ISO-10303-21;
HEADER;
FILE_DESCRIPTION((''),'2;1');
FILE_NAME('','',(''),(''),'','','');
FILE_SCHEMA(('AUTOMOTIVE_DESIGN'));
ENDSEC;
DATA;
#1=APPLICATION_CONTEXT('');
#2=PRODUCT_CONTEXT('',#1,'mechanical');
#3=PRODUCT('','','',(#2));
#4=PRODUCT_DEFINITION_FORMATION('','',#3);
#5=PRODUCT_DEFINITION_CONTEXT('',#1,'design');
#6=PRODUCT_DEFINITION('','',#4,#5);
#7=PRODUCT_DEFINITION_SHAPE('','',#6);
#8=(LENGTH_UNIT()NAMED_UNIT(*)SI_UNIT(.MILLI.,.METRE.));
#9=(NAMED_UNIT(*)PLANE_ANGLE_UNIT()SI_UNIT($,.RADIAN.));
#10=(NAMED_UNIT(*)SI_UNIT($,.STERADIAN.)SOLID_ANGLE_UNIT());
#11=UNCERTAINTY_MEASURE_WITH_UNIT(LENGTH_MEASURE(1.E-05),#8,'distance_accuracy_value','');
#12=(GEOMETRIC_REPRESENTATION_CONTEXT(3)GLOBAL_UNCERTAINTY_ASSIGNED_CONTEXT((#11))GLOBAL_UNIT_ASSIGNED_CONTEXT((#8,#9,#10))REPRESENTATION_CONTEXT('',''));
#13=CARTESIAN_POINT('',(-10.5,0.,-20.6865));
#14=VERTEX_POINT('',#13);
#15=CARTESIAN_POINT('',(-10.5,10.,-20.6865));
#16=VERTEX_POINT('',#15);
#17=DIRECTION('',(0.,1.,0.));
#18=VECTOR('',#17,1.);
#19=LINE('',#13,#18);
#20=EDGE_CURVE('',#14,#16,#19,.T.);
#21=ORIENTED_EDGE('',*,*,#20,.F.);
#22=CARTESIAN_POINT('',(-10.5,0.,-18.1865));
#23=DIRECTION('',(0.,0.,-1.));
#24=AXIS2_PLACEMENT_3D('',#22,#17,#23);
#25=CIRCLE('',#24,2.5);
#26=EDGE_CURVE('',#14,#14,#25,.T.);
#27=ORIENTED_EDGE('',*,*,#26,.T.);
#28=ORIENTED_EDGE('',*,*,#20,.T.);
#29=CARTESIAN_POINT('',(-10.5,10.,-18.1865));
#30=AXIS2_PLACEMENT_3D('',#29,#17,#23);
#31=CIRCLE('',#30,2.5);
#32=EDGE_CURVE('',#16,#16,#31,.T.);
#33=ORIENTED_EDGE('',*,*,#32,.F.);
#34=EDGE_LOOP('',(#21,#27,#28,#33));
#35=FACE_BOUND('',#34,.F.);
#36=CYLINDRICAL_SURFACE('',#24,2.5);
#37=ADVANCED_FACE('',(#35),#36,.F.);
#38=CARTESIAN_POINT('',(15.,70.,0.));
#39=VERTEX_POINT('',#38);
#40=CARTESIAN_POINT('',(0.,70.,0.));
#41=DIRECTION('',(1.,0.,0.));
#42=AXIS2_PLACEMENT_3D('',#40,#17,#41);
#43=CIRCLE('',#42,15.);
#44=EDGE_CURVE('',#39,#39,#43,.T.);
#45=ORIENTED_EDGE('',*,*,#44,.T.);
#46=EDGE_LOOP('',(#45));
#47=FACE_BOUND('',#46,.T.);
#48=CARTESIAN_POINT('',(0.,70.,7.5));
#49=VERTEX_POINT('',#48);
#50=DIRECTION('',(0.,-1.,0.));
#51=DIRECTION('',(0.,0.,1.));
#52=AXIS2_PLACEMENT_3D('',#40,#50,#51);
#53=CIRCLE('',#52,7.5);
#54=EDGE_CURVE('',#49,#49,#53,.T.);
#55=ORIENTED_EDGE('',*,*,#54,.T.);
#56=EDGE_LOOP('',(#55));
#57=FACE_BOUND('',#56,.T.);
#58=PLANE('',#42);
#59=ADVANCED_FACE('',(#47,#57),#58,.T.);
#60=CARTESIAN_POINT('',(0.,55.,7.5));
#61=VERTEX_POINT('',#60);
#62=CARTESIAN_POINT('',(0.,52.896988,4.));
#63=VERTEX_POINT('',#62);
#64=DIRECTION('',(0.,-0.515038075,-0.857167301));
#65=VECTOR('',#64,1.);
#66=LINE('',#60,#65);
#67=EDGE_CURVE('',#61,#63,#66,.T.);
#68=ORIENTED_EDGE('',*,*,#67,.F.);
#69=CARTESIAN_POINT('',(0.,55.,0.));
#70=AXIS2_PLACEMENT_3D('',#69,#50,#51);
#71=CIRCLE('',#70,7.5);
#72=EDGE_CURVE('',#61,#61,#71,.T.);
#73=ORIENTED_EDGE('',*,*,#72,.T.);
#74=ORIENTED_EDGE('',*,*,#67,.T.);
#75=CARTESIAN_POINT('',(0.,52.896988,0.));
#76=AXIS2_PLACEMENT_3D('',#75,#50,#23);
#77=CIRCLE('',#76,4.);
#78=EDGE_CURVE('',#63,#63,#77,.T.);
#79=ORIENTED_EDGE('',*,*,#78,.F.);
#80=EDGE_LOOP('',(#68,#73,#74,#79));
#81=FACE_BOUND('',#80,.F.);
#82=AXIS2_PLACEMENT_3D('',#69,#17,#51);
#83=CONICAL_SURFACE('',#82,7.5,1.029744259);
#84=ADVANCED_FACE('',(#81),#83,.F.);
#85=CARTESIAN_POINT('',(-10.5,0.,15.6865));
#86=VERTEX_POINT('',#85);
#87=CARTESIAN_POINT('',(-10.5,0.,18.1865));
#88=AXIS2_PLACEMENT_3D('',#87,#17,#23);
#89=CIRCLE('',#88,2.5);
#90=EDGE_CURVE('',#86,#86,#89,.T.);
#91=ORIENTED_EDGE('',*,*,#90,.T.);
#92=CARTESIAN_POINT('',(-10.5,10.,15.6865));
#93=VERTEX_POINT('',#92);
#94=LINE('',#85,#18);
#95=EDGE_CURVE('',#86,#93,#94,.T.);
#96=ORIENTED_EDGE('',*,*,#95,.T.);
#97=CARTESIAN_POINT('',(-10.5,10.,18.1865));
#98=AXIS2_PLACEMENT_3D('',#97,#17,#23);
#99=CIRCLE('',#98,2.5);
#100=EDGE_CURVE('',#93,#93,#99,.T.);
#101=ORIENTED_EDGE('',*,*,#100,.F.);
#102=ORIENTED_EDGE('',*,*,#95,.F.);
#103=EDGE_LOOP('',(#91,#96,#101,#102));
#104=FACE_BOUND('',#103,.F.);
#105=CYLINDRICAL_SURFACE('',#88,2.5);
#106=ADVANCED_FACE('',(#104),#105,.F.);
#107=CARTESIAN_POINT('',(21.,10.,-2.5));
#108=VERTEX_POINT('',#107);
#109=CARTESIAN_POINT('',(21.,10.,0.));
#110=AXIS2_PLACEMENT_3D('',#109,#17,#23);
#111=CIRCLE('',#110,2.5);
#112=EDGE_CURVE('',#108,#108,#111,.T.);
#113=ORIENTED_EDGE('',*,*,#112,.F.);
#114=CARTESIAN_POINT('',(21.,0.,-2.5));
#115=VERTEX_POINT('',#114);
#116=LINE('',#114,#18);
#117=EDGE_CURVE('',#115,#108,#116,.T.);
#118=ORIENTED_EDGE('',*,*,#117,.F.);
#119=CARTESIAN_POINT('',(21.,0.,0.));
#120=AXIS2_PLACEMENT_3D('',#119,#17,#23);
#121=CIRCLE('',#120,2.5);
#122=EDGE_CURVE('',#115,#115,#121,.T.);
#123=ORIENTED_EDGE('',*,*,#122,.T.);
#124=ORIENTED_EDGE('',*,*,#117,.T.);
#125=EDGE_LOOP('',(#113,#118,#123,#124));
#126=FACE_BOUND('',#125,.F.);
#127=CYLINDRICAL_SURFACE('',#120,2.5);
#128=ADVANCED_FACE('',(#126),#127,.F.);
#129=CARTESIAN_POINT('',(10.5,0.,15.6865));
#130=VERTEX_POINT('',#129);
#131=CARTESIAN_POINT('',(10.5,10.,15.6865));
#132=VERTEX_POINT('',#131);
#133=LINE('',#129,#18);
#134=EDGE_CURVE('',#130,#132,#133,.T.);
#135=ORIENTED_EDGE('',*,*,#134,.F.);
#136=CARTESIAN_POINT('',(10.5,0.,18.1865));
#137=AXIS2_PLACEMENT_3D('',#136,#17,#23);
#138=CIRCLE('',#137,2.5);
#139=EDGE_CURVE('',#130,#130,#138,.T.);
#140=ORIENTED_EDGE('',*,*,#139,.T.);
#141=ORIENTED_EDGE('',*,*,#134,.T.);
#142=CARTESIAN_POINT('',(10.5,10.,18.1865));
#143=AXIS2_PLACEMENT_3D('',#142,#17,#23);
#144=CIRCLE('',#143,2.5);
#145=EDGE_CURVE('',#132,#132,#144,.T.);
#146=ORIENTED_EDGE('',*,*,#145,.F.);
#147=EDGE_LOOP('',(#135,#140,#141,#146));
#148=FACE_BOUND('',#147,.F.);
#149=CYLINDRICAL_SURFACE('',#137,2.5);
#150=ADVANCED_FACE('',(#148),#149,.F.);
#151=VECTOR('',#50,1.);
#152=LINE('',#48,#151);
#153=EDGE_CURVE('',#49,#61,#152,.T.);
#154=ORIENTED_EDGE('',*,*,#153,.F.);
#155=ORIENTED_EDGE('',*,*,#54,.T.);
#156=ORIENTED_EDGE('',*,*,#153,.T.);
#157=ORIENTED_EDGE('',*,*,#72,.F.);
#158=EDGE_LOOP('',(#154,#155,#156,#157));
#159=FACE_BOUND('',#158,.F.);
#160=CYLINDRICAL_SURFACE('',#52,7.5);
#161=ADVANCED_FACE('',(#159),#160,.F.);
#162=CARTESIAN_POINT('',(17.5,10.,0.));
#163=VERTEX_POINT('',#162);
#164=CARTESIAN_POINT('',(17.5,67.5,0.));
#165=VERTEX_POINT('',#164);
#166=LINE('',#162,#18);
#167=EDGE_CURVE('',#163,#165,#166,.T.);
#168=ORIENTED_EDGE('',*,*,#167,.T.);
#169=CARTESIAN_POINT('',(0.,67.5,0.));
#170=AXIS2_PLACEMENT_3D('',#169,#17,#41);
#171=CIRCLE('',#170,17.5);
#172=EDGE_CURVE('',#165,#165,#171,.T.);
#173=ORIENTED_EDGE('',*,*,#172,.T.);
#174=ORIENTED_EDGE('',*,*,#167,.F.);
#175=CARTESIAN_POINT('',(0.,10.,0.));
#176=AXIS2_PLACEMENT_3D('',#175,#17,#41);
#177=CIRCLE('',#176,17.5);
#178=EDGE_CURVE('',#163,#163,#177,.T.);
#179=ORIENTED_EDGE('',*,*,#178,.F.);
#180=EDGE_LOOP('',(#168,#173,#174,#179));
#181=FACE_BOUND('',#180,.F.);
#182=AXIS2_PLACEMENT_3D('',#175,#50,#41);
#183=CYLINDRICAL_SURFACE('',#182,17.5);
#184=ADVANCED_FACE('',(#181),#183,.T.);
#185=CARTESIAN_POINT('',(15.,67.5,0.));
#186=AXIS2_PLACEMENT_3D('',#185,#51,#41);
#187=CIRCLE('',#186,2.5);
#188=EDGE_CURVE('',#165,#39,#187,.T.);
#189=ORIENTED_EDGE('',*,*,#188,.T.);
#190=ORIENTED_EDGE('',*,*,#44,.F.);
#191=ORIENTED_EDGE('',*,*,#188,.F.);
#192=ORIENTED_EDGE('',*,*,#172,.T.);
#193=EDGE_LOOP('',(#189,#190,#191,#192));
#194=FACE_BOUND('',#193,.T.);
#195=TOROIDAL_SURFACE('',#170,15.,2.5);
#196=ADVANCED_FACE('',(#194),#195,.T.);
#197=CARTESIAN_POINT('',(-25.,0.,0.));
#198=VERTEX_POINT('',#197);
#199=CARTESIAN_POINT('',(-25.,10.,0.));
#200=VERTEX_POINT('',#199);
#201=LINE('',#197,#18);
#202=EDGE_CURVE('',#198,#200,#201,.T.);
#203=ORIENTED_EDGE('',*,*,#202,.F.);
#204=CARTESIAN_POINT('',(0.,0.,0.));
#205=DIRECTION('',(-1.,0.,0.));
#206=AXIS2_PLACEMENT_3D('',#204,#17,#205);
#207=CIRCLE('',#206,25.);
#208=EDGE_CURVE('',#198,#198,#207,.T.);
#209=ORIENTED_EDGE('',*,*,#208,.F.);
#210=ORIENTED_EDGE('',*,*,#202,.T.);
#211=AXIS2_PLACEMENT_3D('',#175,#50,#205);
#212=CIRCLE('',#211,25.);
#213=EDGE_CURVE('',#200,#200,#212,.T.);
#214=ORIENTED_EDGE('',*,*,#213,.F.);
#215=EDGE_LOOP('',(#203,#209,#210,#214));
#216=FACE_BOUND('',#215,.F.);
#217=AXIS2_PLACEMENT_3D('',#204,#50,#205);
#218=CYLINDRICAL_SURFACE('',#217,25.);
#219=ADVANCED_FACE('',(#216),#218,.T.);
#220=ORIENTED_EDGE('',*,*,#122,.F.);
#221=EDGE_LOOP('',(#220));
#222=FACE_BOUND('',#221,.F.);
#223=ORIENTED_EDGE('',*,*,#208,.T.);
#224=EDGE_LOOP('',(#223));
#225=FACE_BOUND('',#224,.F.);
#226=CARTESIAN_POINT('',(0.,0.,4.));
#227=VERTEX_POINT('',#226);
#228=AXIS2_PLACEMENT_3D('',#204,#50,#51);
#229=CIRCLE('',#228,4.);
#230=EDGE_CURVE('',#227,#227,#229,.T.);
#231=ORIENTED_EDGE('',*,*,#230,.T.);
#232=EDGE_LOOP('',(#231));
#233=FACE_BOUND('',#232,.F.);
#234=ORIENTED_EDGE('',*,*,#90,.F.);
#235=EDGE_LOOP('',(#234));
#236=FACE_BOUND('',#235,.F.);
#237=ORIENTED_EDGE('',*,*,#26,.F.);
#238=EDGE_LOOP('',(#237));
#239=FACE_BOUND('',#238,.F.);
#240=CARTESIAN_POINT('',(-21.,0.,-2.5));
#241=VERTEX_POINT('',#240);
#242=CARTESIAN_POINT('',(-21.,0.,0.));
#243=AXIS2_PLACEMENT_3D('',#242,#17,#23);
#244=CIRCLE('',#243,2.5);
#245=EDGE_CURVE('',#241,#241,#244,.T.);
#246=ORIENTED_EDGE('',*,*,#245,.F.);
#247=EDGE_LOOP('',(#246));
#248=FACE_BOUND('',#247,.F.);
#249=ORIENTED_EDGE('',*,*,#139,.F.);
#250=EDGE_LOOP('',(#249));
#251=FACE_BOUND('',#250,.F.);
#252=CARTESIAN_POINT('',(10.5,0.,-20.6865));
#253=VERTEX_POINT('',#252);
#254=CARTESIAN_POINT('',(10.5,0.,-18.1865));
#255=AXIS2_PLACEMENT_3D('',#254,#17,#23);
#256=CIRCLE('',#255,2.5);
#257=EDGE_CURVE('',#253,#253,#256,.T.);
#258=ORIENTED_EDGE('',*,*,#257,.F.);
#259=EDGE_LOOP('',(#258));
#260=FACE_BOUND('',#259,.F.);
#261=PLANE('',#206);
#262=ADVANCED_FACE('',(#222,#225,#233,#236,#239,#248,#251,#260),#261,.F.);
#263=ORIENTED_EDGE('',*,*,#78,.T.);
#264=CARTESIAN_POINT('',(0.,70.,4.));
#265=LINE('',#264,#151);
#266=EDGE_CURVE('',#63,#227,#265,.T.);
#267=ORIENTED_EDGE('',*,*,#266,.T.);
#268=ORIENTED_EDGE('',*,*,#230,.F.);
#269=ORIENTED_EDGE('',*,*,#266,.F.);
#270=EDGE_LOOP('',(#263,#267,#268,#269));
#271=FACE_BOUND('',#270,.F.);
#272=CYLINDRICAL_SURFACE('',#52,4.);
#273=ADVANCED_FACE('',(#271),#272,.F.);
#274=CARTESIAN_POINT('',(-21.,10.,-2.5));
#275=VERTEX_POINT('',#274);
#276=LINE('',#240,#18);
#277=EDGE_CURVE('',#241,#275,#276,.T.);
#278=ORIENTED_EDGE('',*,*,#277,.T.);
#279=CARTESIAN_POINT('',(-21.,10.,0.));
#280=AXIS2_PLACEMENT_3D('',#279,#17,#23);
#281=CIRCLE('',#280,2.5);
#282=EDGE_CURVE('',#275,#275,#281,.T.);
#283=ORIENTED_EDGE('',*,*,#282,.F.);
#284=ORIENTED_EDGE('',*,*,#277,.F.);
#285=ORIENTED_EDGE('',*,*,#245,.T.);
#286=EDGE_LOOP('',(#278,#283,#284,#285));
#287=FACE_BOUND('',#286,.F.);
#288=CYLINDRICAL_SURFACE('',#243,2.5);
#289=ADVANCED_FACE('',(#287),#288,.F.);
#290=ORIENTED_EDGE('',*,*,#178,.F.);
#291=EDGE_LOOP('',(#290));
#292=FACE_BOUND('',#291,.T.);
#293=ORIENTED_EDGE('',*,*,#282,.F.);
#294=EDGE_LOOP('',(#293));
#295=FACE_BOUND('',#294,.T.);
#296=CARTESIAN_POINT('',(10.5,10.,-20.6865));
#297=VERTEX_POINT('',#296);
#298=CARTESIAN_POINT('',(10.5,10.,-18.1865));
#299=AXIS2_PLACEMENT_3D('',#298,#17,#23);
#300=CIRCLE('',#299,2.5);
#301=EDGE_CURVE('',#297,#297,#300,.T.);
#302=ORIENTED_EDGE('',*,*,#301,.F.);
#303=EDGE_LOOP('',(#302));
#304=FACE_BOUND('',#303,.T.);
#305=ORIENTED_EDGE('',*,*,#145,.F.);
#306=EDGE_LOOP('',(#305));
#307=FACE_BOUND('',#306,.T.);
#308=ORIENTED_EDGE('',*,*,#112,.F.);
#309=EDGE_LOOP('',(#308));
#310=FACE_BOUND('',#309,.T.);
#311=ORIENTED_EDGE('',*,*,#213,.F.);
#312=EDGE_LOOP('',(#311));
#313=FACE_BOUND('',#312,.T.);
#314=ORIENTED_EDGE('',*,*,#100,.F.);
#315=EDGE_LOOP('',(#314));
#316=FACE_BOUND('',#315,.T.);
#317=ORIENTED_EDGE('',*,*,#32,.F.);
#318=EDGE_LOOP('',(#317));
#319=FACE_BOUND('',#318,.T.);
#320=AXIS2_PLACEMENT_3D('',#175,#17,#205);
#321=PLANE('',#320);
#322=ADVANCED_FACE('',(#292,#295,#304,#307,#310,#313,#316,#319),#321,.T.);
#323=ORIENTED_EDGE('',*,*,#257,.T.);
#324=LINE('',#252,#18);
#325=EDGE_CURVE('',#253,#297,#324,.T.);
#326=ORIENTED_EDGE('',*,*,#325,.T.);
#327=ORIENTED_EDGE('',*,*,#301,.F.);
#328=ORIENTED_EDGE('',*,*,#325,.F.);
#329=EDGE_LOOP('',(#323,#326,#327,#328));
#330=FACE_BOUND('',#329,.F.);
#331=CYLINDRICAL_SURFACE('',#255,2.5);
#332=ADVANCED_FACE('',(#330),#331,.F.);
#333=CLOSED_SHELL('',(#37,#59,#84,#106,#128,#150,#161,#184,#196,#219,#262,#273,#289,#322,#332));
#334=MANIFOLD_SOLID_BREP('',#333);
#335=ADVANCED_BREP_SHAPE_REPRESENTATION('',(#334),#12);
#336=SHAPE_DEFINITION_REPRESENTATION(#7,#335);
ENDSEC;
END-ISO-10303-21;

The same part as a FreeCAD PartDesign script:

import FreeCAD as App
import Part
import Sketcher
Q = App.Units.Quantity


def edges_at(feature, points):
    """Names of the edges that pass closest to the given points."""
    edges = feature.Shape.Edges
    near = lambda p: min(range(len(edges)), key=lambda i: edges[i].distToShape(Part.Vertex(*p))[0])
    return sorted({f"Edge{near(p) + 1}" for p in points})

doc = App.newDocument("Part")
body = doc.addObject("PartDesign::Body", "Body")

# Sketch on XZ plane
sketch1 = body.newObject("Sketcher::SketchObject", "Sketch")
sketch1.AttachmentSupport = (doc.getObject("XZ_Plane"), [""])
sketch1.MapMode = "FlatFace"
sketch1.addGeometry(Part.Circle(App.Vector(0, 0, 0), App.Vector(0, 0, 1), 25), False)
sketch1.addConstraint([
    Sketcher.Constraint("Coincident", 0, 3, -1, 1),
    Sketcher.Constraint("Diameter", 0, Q("50 mm")),
])
pad1 = body.newObject("PartDesign::Pad", "Pad")
pad1.Profile = sketch1
pad1.Length = 10
pad1.Reversed = True

# Sketch on XZ plane
sketch2 = body.newObject("Sketcher::SketchObject", "Sketch001")
sketch2.AttachmentSupport = (doc.getObject("XZ_Plane"), [""])
sketch2.MapMode = "FlatFace"
sketch2.AttachmentOffset = App.Placement(App.Vector(0, 0, -10), App.Rotation())
sketch2.addGeometry(Part.Circle(App.Vector(0, 0, 0), App.Vector(0, 0, 1), 18), False)
sketch2.addConstraint([
    Sketcher.Constraint("Coincident", 0, 3, -1, 1),
    Sketcher.Constraint("Diameter", 0, Q("35 mm")),
])
pad2 = body.newObject("PartDesign::Pad", "Pad001")
pad2.Profile = sketch2
pad2.Length = 60
pad2.Reversed = True

# Sketch on XZ plane
sketch3 = body.newObject("Sketcher::SketchObject", "Sketch002")
sketch3.AttachmentSupport = (doc.getObject("XZ_Plane"), [""])
sketch3.MapMode = "FlatFace"
sketch3.AttachmentOffset = App.Placement(App.Vector(0, 0, -70), App.Rotation())
sketch3.addGeometry(Part.Circle(App.Vector(0, 0, 0), App.Vector(0, 0, 1), 4), False)
sketch3.addConstraint([
    Sketcher.Constraint("Coincident", 0, 3, -1, 1),
    Sketcher.Constraint("Diameter", 0, Q("8 mm")),
])
doc.recompute()
hole = body.newObject("PartDesign::Hole", "Hole")
hole.Profile = sketch3
hole.ThreadType = "None"
hole.Diameter = 8
hole.DepthType = "ThroughAll"
hole.Reversed = True
doc.recompute()

fillet = body.newObject("PartDesign::Fillet", "Fillet")
fillet.Base = (hole, edges_at(hole, [(-17.5, 70, 0)]))
fillet.Radius = 2.5

# Sketch on XZ plane
sketch4 = body.newObject("Sketcher::SketchObject", "Sketch003")
sketch4.AttachmentSupport = (doc.getObject("XZ_Plane"), [""])
sketch4.MapMode = "FlatFace"
sketch4.AttachmentOffset = App.Placement(App.Vector(0, 0, -70), App.Rotation())
sketch4.addGeometry(Part.Circle(App.Vector(0, 0, 0), App.Vector(0, 0, 1), 8), False)
sketch4.addConstraint([
    Sketcher.Constraint("Coincident", 0, 3, -1, 1),
    Sketcher.Constraint("Diameter", 0, Q("15 mm")),
])
doc.recompute()
hole2 = body.newObject("PartDesign::Hole", "Hole001")
hole2.Profile = sketch4
hole2.ThreadType = "None"
hole2.Diameter = 15
hole2.DepthType = "Dimension"
hole2.Depth = 15
hole2.DrillPoint = "Angled"
hole2.DrillPointAngle = 118
hole2.Reversed = True

# Sketch on XZ plane
sketch5 = body.newObject("Sketcher::SketchObject", "Sketch004")
sketch5.AttachmentSupport = (doc.getObject("XZ_Plane"), [""])
sketch5.MapMode = "FlatFace"
sketch5.addGeometry([
    Part.Circle(App.Vector(-21, 0, 0), App.Vector(0, 0, 1), 2.5),  # 0
    Part.Circle(App.Vector(-10.5, 18.2, 0), App.Vector(0, 0, 1), 2.5),  # 1
    Part.Circle(App.Vector(10.5, 18.2, 0), App.Vector(0, 0, 1), 2.5),  # 2
    Part.Circle(App.Vector(21, 0, 0), App.Vector(0, 0, 1), 2.5),  # 3
    Part.Circle(App.Vector(10.5, -18.2, 0), App.Vector(0, 0, 1), 2.5),  # 4
    Part.Circle(App.Vector(-10.5, -18.2, 0), App.Vector(0, 0, 1), 2.5),  # 5
], False)
sketch5.addConstraint([
    Sketcher.Constraint("Equal", 0, 1),
    Sketcher.Constraint("Equal", 1, 2),
    Sketcher.Constraint("Equal", 2, 3),
    Sketcher.Constraint("Equal", 3, 4),
    Sketcher.Constraint("Equal", 4, 5),
    Sketcher.Constraint("Symmetric", 0, 3, 3, 3, -1, 1),
    Sketcher.Constraint("Symmetric", 1, 3, 4, 3, -1, 1),
    Sketcher.Constraint("Symmetric", 2, 3, 5, 3, -1, 1),
    Sketcher.Constraint("Symmetric", 1, 3, 2, 3, -2),
    Sketcher.Constraint("PointOnObject", 0, 3, -1),
    Sketcher.Constraint("Diameter", 0, Q("5 mm")),
    Sketcher.Constraint("DistanceX", 0, 3, -1, 1, Q("21 mm")),
    Sketcher.Constraint("DistanceX", 1, 3, 2, 3, Q("21 mm")),
    Sketcher.Constraint("DistanceY", 4, 3, 2, 3, Q("36.373 mm")),
])
doc.recompute()
hole3 = body.newObject("PartDesign::Hole", "Hole002")
hole3.Profile = sketch5
hole3.ThreadType = "None"
hole3.Diameter = 5
hole3.DepthType = "Dimension"
hole3.Depth = 10
hole3.DrillPoint = "Angled"
hole3.DrillPointAngle = 118

doc.recompute()
